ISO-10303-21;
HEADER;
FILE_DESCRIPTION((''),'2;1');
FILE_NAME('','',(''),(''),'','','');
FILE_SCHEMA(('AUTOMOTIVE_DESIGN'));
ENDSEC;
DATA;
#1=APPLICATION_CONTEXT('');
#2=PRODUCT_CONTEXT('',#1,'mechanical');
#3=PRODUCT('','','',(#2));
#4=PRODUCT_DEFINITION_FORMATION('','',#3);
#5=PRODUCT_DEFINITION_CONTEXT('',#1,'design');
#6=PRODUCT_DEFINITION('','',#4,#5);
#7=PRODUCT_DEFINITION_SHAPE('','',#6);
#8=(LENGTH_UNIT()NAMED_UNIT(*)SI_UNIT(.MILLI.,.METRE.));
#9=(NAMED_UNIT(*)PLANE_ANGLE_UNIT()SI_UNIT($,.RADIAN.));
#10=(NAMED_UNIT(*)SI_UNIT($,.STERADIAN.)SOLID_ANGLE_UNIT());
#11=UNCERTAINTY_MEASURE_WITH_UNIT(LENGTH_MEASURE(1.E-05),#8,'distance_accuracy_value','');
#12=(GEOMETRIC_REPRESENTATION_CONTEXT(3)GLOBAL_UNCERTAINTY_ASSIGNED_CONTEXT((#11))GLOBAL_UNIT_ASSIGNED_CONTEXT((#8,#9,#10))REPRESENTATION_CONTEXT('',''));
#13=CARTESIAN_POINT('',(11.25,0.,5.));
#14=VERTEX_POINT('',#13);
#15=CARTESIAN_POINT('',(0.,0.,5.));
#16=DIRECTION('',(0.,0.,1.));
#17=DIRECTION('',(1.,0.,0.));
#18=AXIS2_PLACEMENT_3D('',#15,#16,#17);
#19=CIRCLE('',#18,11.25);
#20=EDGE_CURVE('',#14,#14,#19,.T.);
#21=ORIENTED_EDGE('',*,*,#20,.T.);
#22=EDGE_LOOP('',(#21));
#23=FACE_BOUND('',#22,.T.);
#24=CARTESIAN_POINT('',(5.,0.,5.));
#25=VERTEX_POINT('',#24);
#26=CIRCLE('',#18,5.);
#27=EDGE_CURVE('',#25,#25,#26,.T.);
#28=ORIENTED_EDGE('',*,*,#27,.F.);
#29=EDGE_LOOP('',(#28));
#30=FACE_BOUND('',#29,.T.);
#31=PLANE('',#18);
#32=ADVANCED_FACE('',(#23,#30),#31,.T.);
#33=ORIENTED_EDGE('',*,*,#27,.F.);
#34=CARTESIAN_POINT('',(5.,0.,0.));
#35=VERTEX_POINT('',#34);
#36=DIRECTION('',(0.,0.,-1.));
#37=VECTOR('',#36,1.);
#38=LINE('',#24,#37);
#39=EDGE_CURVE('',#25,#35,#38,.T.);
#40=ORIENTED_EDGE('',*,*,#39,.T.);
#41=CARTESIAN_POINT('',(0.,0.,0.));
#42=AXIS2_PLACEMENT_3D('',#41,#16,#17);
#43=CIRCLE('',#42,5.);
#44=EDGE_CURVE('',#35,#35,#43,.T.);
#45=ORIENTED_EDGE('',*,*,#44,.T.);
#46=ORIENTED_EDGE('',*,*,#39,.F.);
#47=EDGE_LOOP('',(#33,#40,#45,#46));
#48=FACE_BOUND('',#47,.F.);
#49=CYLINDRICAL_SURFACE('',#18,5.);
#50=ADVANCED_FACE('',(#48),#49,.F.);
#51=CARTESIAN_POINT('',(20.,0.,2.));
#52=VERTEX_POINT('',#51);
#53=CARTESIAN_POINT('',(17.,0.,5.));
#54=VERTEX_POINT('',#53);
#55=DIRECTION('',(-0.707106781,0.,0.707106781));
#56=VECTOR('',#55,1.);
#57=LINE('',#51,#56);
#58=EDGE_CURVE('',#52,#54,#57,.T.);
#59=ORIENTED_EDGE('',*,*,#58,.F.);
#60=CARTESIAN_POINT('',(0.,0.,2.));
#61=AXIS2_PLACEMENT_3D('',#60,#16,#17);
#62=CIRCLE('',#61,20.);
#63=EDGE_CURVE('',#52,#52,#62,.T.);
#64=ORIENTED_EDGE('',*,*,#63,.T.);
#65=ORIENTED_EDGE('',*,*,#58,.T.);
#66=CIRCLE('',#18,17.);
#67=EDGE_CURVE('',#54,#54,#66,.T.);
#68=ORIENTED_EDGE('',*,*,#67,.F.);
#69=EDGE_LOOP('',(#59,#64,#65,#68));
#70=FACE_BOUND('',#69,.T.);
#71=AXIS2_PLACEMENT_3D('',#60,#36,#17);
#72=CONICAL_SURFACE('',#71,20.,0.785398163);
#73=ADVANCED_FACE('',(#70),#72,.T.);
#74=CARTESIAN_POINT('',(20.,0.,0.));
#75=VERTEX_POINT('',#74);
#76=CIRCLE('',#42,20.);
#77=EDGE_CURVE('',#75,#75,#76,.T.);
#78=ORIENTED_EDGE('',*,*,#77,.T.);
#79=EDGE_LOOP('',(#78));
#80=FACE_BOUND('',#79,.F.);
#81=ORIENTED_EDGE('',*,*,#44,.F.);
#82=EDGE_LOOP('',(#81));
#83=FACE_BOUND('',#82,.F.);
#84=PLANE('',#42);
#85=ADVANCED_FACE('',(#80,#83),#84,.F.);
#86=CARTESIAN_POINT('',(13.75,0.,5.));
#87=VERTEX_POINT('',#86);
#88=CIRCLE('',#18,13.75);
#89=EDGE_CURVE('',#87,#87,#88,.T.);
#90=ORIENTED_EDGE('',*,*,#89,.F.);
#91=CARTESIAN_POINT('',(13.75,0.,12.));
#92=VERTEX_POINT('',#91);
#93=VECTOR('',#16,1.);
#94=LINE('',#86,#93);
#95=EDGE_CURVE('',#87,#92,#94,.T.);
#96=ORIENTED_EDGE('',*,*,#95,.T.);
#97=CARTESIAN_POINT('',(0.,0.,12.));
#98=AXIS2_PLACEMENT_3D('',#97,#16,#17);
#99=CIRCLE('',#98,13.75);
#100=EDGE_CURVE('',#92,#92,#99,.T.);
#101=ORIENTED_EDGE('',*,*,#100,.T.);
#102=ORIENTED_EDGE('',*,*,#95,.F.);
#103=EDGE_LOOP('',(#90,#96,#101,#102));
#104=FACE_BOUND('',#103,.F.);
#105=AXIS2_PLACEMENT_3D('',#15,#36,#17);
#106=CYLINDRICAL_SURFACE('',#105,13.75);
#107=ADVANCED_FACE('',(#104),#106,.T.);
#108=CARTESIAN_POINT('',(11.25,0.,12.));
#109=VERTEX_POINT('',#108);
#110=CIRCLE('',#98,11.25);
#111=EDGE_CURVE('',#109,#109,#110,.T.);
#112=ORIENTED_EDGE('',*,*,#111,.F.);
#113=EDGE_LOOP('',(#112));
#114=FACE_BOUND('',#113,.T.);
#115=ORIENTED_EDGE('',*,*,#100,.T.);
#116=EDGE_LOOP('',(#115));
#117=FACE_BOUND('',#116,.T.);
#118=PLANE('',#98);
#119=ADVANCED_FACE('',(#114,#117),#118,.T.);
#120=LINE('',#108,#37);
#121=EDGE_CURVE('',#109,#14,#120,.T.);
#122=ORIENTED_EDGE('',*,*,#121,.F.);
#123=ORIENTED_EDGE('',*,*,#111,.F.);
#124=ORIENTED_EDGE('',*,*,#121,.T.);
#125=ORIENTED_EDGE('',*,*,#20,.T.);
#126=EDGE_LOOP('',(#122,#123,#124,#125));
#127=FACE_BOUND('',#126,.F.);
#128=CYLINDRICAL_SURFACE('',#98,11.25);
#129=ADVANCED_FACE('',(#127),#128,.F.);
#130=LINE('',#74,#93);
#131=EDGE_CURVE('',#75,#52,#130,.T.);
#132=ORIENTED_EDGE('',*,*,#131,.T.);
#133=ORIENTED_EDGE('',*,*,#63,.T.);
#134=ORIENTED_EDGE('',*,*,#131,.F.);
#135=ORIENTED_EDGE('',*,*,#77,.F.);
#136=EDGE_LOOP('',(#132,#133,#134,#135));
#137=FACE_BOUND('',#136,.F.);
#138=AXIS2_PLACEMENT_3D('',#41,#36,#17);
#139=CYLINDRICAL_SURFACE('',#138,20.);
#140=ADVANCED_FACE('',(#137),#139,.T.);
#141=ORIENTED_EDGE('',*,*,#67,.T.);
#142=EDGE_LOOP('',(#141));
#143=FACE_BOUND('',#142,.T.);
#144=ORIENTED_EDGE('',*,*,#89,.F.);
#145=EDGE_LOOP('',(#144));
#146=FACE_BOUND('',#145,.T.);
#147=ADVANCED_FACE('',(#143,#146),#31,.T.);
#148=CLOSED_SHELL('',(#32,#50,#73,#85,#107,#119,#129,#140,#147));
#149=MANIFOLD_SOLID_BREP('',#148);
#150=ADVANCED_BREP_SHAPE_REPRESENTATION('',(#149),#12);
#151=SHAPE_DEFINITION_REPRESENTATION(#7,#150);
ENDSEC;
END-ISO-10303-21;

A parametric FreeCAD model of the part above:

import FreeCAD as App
import Part
import Sketcher
from FreeCAD import Vector
Q = App.Units.Quantity


def edges_at(feature, points):
    """Names of the edges that pass closest to the given points."""
    edges = feature.Shape.Edges
    near = lambda p: min(range(len(edges)), key=lambda i: edges[i].distToShape(Part.Vertex(*p))[0])
    return sorted({f"Edge{near(p) + 1}" for p in points})

doc = App.newDocument("Part")
body = doc.addObject("PartDesign::Body", "Body")

sketch1 = body.newObject("Sketcher::SketchObject", "Sketch")
sketch1.AttachmentSupport = (doc.getObject("XY_Plane"), [""])
sketch1.MapMode = "FlatFace"
sketch1.addGeometry(Part.Circle(Vector(0, 0, 0), Vector(0, 0, 1), 20), False)
sketch1.addConstraint([
    Sketcher.Constraint("Coincident", 0, 3, -1, 1),
    Sketcher.Constraint("Diameter", 0, Q("40 mm")),
])
pad1 = body.newObject("PartDesign::Pad", "Pad")
pad1.Profile = sketch1
pad1.Length = 5

sketch2 = body.newObject("Sketcher::SketchObject", "Sketch001")
sketch2.AttachmentSupport = (doc.getObject("XY_Plane"), [""])
sketch2.MapMode = "FlatFace"
sketch2.AttachmentOffset = App.Placement(Vector(0, 0, 5), App.Rotation())
sketch2.addGeometry(Part.Circle(Vector(0, 0, 0), Vector(0, 0, 1), 14), False)
sketch2.addConstraint([
    Sketcher.Constraint("Coincident", 0, 3, -1, 1),
    Sketcher.Constraint("Diameter", 0, Q("27.5 mm")),
])
pad2 = body.newObject("PartDesign::Pad", "Pad001")
pad2.Profile = sketch2
pad2.Length = 7
doc.recompute()

chamfer = body.newObject("PartDesign::Chamfer", "Chamfer")
chamfer.Base = (pad2, edges_at(pad2, [(-20, 0, 5)]))
chamfer.Size = 3

sketch3 = body.newObject("Sketcher::SketchObject", "Sketch002")
sketch3.AttachmentSupport = (doc.getObject("XY_Plane"), [""])
sketch3.MapMode = "FlatFace"
sketch3.AttachmentOffset = App.Placement(Vector(0, 0, 12), App.Rotation())
sketch3.addGeometry(Part.Circle(Vector(0, 0, 0), Vector(0, 0, 1), 11), False)
sketch3.addConstraint([
    Sketcher.Constraint("Coincident", 0, 3, -1, 1),
    Sketcher.Constraint("Diameter", 0, Q("22.5 mm")),
])
pocket1 = body.newObject("PartDesign::Pocket", "Pocket")
pocket1.Profile = sketch3
pocket1.Length = 7

sketch4 = body.newObject("Sketcher::SketchObject", "Sketch003")
sketch4.AttachmentSupport = (doc.getObject("XY_Plane"), [""])
sketch4.MapMode = "FlatFace"
sketch4.AttachmentOffset = App.Placement(Vector(0, 0, 5), App.Rotation())
sketch4.addGeometry(Part.Circle(Vector(0, 0, 0), Vector(0, 0, 1), 5), False)
sketch4.addConstraint([
    Sketcher.Constraint("Coincident", 0, 3, -1, 1),
    Sketcher.Constraint("Diameter", 0, Q("10 mm")),
])
pocket2 = body.newObject("PartDesign::Pocket", "Pocket001")
pocket2.Profile = sketch4
pocket2.Type = "ThroughAll"

doc.recompute()
